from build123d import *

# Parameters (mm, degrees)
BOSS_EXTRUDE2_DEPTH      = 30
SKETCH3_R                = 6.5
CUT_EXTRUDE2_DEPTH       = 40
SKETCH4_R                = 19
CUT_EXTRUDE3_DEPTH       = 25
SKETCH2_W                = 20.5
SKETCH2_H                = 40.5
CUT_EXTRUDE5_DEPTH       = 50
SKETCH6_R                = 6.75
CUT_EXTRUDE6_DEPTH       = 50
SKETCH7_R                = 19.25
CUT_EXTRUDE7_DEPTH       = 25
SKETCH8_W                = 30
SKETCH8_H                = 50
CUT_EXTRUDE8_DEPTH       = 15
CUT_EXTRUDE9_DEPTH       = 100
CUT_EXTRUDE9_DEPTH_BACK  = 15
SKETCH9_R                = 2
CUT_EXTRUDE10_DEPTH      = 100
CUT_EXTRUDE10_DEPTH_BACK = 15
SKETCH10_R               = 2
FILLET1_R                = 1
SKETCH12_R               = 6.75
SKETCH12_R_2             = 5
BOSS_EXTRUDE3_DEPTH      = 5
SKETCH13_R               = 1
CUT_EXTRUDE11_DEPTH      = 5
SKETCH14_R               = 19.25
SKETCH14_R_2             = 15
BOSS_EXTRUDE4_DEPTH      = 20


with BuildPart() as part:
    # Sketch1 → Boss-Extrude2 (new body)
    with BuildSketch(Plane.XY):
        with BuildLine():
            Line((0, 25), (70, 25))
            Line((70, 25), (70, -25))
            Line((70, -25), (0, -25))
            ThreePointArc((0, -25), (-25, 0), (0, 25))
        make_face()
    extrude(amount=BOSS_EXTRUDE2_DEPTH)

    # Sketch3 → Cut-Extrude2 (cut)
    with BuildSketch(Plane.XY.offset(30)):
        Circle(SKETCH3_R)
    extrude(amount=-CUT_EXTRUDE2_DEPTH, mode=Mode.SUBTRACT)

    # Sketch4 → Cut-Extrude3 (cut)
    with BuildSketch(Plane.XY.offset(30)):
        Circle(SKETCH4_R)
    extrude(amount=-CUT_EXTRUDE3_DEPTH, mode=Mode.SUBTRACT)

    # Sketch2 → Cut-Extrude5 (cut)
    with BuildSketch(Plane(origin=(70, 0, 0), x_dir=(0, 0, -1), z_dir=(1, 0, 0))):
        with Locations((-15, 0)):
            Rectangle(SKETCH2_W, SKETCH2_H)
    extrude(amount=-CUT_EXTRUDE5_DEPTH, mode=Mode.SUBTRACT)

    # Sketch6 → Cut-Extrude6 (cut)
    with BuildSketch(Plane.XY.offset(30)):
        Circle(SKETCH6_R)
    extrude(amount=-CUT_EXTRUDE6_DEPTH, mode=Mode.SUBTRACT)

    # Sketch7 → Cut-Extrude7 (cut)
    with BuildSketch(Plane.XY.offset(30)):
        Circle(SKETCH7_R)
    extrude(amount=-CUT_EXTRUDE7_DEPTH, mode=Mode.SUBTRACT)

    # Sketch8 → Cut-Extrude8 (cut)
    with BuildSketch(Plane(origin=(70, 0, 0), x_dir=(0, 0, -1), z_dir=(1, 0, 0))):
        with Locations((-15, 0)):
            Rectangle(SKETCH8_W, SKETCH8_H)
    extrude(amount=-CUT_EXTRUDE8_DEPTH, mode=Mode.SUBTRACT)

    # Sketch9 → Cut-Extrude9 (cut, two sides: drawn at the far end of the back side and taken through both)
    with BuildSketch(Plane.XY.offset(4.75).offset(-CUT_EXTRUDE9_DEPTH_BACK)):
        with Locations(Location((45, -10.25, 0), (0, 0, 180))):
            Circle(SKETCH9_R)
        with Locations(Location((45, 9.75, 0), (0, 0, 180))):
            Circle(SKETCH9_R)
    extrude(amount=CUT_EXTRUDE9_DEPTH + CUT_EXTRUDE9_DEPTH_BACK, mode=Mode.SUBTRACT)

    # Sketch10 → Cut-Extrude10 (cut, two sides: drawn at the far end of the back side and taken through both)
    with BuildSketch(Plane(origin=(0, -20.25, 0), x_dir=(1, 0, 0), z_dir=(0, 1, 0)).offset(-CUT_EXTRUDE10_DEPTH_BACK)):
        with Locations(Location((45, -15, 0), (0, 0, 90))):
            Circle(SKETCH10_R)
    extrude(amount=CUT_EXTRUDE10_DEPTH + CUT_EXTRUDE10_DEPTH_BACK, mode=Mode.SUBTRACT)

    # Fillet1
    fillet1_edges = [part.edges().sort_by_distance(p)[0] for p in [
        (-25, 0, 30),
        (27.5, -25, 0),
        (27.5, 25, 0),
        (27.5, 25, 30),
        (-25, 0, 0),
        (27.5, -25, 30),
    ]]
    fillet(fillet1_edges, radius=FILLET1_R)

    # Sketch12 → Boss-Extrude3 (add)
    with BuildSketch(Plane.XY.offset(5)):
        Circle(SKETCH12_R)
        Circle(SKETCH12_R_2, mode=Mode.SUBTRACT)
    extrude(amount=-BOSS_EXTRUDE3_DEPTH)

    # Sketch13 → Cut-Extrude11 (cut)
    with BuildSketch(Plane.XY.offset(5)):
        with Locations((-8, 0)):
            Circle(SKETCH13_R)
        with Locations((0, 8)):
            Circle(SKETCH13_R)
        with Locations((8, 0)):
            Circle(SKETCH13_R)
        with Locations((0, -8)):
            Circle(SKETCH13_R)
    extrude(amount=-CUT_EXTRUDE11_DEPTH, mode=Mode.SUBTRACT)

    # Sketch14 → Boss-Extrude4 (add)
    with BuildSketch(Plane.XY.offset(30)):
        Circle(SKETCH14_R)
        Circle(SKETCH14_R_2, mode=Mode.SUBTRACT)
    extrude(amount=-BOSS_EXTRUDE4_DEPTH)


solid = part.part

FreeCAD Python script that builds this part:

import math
import FreeCAD as App
import Part
import Sketcher
from FreeCAD import Vector


def edges_at(feature, points):
    """Names of the edges that pass closest to the given points."""
    edges = feature.Shape.Edges
    near = lambda p: min(range(len(edges)), key=lambda i: edges[i].distToShape(Part.Vertex(*p))[0])
    return sorted({f"Edge{near(p) + 1}" for p in points})

doc = App.newDocument("Part")
body = doc.addObject("PartDesign::Body", "Body")

sketch1 = doc.addObject("Sketcher::SketchObject", "Sketch")
body.addObject(sketch1)
sketch1.AttachmentSupport = (doc.XY_Plane, [""])
sketch1.MapMode = "FlatFace"
sketch1.addGeometry(Part.LineSegment(Vector(70, 25, 0), Vector(0, 25, 0)), False)
sketch1.addGeometry(Part.ArcOfCircle(Part.Circle(Vector(0, 0, 0), Vector(0, 0, 1), 25), math.radians(90), math.radians(270)), False)
sketch1.addGeometry(Part.LineSegment(Vector(0, -25, 0), Vector(70, -25, 0)), False)
sketch1.addGeometry(Part.LineSegment(Vector(70, -25, 0), Vector(70, 25, 0)), False)
sketch1.addConstraint(Sketcher.Constraint("Tangent", 0, 2, 1, 1))
sketch1.addConstraint(Sketcher.Constraint("Tangent", 1, 2, 2, 1))
sketch1.addConstraint(Sketcher.Constraint("Coincident", 2, 2, 3, 1))
sketch1.addConstraint(Sketcher.Constraint("Coincident", 3, 2, 0, 1))
sketch1.addConstraint(Sketcher.Constraint("Horizontal", 0))
sketch1.addConstraint(Sketcher.Constraint("Horizontal", 2))
sketch1.addConstraint(Sketcher.Constraint("Vertical", 3))
sketch1.addConstraint(Sketcher.Constraint("Coincident", 1, 3, -1, 1))
sketch1.addConstraint(Sketcher.Constraint("Radius", 1, 25.0))
sketch1.addConstraint(Sketcher.Constraint("DistanceX", 0, 2, 0, 1, 70.0))
pad1 = doc.addObject("PartDesign::Pad", "Pad")
body.addObject(pad1)
pad1.Profile = sketch1
pad1.Length = 30

sketch2 = doc.addObject("Sketcher::SketchObject", "Sketch001")
body.addObject(sketch2)
sketch2.AttachmentSupport = (doc.XY_Plane, [""])
sketch2.MapMode = "FlatFace"
sketch2.AttachmentOffset = App.Placement(Vector(0, 0, 30), App.Rotation())
sketch2.addGeometry(Part.Circle(Vector(0, 0, 0), Vector(0, 0, 1), 6), False)
sketch2.addConstraint(Sketcher.Constraint("Coincident", 0, 3, -1, 1))
sketch2.addConstraint(Sketcher.Constraint("Diameter", 0, 13.0))
pocket1 = doc.addObject("PartDesign::Pocket", "Pocket")
body.addObject(pocket1)
pocket1.Profile = sketch2
pocket1.Length = 40

sketch3 = doc.addObject("Sketcher::SketchObject", "Sketch002")
body.addObject(sketch3)
sketch3.AttachmentSupport = (doc.XY_Plane, [""])
sketch3.MapMode = "FlatFace"
sketch3.AttachmentOffset = App.Placement(Vector(0, 0, 30), App.Rotation())
sketch3.addGeometry(Part.Circle(Vector(0, 0, 0), Vector(0, 0, 1), 19), False)
sketch3.addConstraint(Sketcher.Constraint("Coincident", 0, 3, -1, 1))
sketch3.addConstraint(Sketcher.Constraint("Diameter", 0, 38.0))
pocket2 = doc.addObject("PartDesign::Pocket", "Pocket001")
body.addObject(pocket2)
pocket2.Profile = sketch3
pocket2.Length = 25

sketch4 = doc.addObject("Sketcher::SketchObject", "Sketch003")
body.addObject(sketch4)
sketch4.AttachmentSupport = (doc.YZ_Plane, [""])
sketch4.MapMode = "FlatFace"
sketch4.AttachmentOffset = App.Placement(Vector(0, 0, 70), App.Rotation())
sketch4.addGeometry(Part.LineSegment(Vector(20, 25, 0), Vector(-20, 25, 0)), False)
sketch4.addGeometry(Part.LineSegment(Vector(-20, 25, 0), Vector(-20, 5, 0)), False)
sketch4.addGeometry(Part.LineSegment(Vector(-20, 5, 0), Vector(20, 5, 0)), False)
sketch4.addGeometry(Part.LineSegment(Vector(20, 5, 0), Vector(20, 25, 0)), False)
sketch4.addConstraint(Sketcher.Constraint("Coincident", 0, 2, 1, 1))
sketch4.addConstraint(Sketcher.Constraint("Coincident", 1, 2, 2, 1))
sketch4.addConstraint(Sketcher.Constraint("Coincident", 2, 2, 3, 1))
sketch4.addConstraint(Sketcher.Constraint("Coincident", 3, 2, 0, 1))
sketch4.addConstraint(Sketcher.Constraint("Horizontal", 0))
sketch4.addConstraint(Sketcher.Constraint("Vertical", 1))
sketch4.addConstraint(Sketcher.Constraint("Horizontal", 2))
sketch4.addConstraint(Sketcher.Constraint("Vertical", 3))
sketch4.addConstraint(Sketcher.Constraint("DistanceX", 0, 2, 0, 1, 40.5))
sketch4.addConstraint(Sketcher.Constraint("DistanceY", 1, 2, 1, 1, 20.5))
sketch4.addConstraint(Sketcher.Constraint("DistanceX", 0, 2, -1, 1, 20.25))
sketch4.addConstraint(Sketcher.Constraint("DistanceY", -1, 1, 0, 2, 25.25))
pocket3 = doc.addObject("PartDesign::Pocket", "Pocket002")
body.addObject(pocket3)
pocket3.Profile = sketch4
pocket3.Length = 50

sketch5 = doc.addObject("Sketcher::SketchObject", "Sketch004")
body.addObject(sketch5)
sketch5.AttachmentSupport = (doc.XY_Plane, [""])
sketch5.MapMode = "FlatFace"
sketch5.AttachmentOffset = App.Placement(Vector(0, 0, 30), App.Rotation())
sketch5.addGeometry(Part.Circle(Vector(0, 0, 0), Vector(0, 0, 1), 7), False)
sketch5.addConstraint(Sketcher.Constraint("Coincident", 0, 3, -1, 1))
sketch5.addConstraint(Sketcher.Constraint("Diameter", 0, 13.5))
pocket4 = doc.addObject("PartDesign::Pocket", "Pocket003")
body.addObject(pocket4)
pocket4.Profile = sketch5
pocket4.Length = 50

sketch6 = doc.addObject("Sketcher::SketchObject", "Sketch005")
body.addObject(sketch6)
sketch6.AttachmentSupport = (doc.XY_Plane, [""])
sketch6.MapMode = "FlatFace"
sketch6.AttachmentOffset = App.Placement(Vector(0, 0, 30), App.Rotation())
sketch6.addGeometry(Part.Circle(Vector(0, 0, 0), Vector(0, 0, 1), 19), False)
sketch6.addConstraint(Sketcher.Constraint("Coincident", 0, 3, -1, 1))
sketch6.addConstraint(Sketcher.Constraint("Diameter", 0, 38.5))
pocket5 = doc.addObject("PartDesign::Pocket", "Pocket004")
body.addObject(pocket5)
pocket5.Profile = sketch6
pocket5.Length = 25

sketch7 = doc.addObject("Sketcher::SketchObject", "Sketch006")
body.addObject(sketch7)
sketch7.AttachmentSupport = (doc.YZ_Plane, [""])
sketch7.MapMode = "FlatFace"
sketch7.AttachmentOffset = App.Placement(Vector(0, 0, 70), App.Rotation())
sketch7.addGeometry(Part.LineSegment(Vector(25, 30, 0), Vector(-25, 30, 0)), False)
sketch7.addGeometry(Part.LineSegment(Vector(-25, 30, 0), Vector(-25, 0, 0)), False)
sketch7.addGeometry(Part.LineSegment(Vector(-25, 0, 0), Vector(25, 0, 0)), False)
sketch7.addGeometry(Part.LineSegment(Vector(25, 0, 0), Vector(25, 30, 0)), False)
sketch7.addConstraint(Sketcher.Constraint("Coincident", 0, 2, 1, 1))
sketch7.addConstraint(Sketcher.Constraint("Coincident", 1, 2, 2, 1))
sketch7.addConstraint(Sketcher.Constraint("Coincident", 2, 2, 3, 1))
sketch7.addConstraint(Sketcher.Constraint("Coincident", 3, 2, 0, 1))
sketch7.addConstraint(Sketcher.Constraint("Horizontal", 0))
sketch7.addConstraint(Sketcher.Constraint("Vertical", 1))
sketch7.addConstraint(Sketcher.Constraint("Horizontal", 2))
sketch7.addConstraint(Sketcher.Constraint("Vertical", 3))
sketch7.addConstraint(Sketcher.Constraint("Symmetric", 1, 2, 2, 2, -1, 1))
sketch7.addConstraint(Sketcher.Constraint("DistanceX", 0, 2, 0, 1, 50.0))
sketch7.addConstraint(Sketcher.Constraint("DistanceY", 1, 2, 1, 1, 30.0))
pocket6 = doc.addObject("PartDesign::Pocket", "Pocket005")
body.addObject(pocket6)
pocket6.Profile = sketch7
pocket6.Length = 15

sketch8 = doc.addObject("Sketcher::SketchObject", "Sketch007")
body.addObject(sketch8)
sketch8.AttachmentSupport = (doc.XY_Plane, [""])
sketch8.MapMode = "FlatFace"
sketch8.AttachmentOffset = App.Placement(Vector(0, 0, 4.75), App.Rotation())
sketch8.addGeometry(Part.Circle(Vector(45, -10.2, 0), Vector(0, 0, 1), 2), False)
sketch8.addGeometry(Part.Circle(Vector(45, 9.8, 0), Vector(0, 0, 1), 2), False)
sketch8.addConstraint(Sketcher.Constraint("Equal", 0, 1))
sketch8.addConstraint(Sketcher.Constraint("Vertical", 0, 3, 1, 3))
sketch8.addConstraint(Sketcher.Constraint("Diameter", 0, 4.0))
sketch8.addConstraint(Sketcher.Constraint("DistanceX", -1, 1, 0, 3, 45.0))
sketch8.addConstraint(Sketcher.Constraint("DistanceY", 0, 3, 1, 3, 20.0))
sketch8.addConstraint(Sketcher.Constraint("DistanceY", 0, 3, -1, 1, 10.25))
pocket7 = doc.addObject("PartDesign::Pocket", "Pocket006")
body.addObject(pocket7)
pocket7.Profile = sketch8
pocket7.Type = "ThroughAll"
pocket7.Midplane = True

sketch9 = doc.addObject("Sketcher::SketchObject", "Sketch008")
body.addObject(sketch9)
sketch9.AttachmentSupport = (doc.XZ_Plane, [""])
sketch9.MapMode = "FlatFace"
sketch9.AttachmentOffset = App.Placement(Vector(0, 0, 20.25), App.Rotation())
sketch9.addGeometry(Part.Circle(Vector(45, 15, 0), Vector(0, 0, 1), 2), False)
sketch9.addConstraint(Sketcher.Constraint("Diameter", 0, 4.0))
sketch9.addConstraint(Sketcher.Constraint("DistanceX", -1, 1, 0, 3, 45.0))
sketch9.addConstraint(Sketcher.Constraint("DistanceY", -1, 1, 0, 3, 15.0))
pocket8 = doc.addObject("PartDesign::Pocket", "Pocket007")
body.addObject(pocket8)
pocket8.Profile = sketch9
pocket8.Type = "ThroughAll"
pocket8.Midplane = True
doc.recompute()

fillet = doc.addObject("PartDesign::Fillet", "Fillet")
body.addObject(fillet)
fillet.Base = (pocket8, edges_at(pocket8, [
    (-25, 0, 30),
    (27.5, -25, 0),
    (27.5, 25, 0),
    (27.5, 25, 30),
    (-25, 0, 0),
    (27.5, -25, 30),
]))
fillet.Radius = 1

sketch10 = doc.addObject("Sketcher::SketchObject", "Sketch009")
body.addObject(sketch10)
sketch10.AttachmentSupport = (doc.XY_Plane, [""])
sketch10.MapMode = "FlatFace"
sketch10.AttachmentOffset = App.Placement(Vector(0, 0, 5), App.Rotation())
sketch10.addGeometry(Part.Circle(Vector(0, 0, 0), Vector(0, 0, 1), 7), False)
sketch10.addGeometry(Part.Circle(Vector(0, 0, 0), Vector(0, 0, 1), 5), False)
sketch10.addConstraint(Sketcher.Constraint("Coincident", 0, 3, -1, 1))
sketch10.addConstraint(Sketcher.Constraint("Coincident", 1, 3, -1, 1))
sketch10.addConstraint(Sketcher.Constraint("Diameter", 1, 10.0))
sketch10.addConstraint(Sketcher.Constraint("Diameter", 0, 13.5))
pad2 = doc.addObject("PartDesign::Pad", "Pad001")
body.addObject(pad2)
pad2.Profile = sketch10
pad2.Length = 5
pad2.Reversed = True

sketch11 = doc.addObject("Sketcher::SketchObject", "Sketch010")
body.addObject(sketch11)
sketch11.AttachmentSupport = (doc.XY_Plane, [""])
sketch11.MapMode = "FlatFace"
sketch11.AttachmentOffset = App.Placement(Vector(0, 0, 5), App.Rotation())
sketch11.addGeometry(Part.Circle(Vector(-8, 0, 0), Vector(0, 0, 1), 1), False)
sketch11.addGeometry(Part.Circle(Vector(0, 8, 0), Vector(0, 0, 1), 1), False)
sketch11.addGeometry(Part.Circle(Vector(8, 0, 0), Vector(0, 0, 1), 1), False)
sketch11.addGeometry(Part.Circle(Vector(0, -8, 0), Vector(0, 0, 1), 1), False)
sketch11.addConstraint(Sketcher.Constraint("Equal", 0, 1))
sketch11.addConstraint(Sketcher.Constraint("Equal", 1, 2))
sketch11.addConstraint(Sketcher.Constraint("Equal", 2, 3))
sketch11.addConstraint(Sketcher.Constraint("Symmetric", 0, 3, 2, 3, -1, 1))
sketch11.addConstraint(Sketcher.Constraint("Symmetric", 1, 3, 3, 3, -1, 1))
sketch11.addConstraint(Sketcher.Constraint("PointOnObject", 0, 3, -1))
sketch11.addConstraint(Sketcher.Constraint("PointOnObject", 1, 3, -2))
sketch11.addConstraint(Sketcher.Constraint("Diameter", 0, 2.0))
sketch11.addConstraint(Sketcher.Constraint("DistanceX", 0, 3, -1, 1, 8.0))
sketch11.addConstraint(Sketcher.Constraint("DistanceY", -1, 1, 1, 3, 8.0))
pocket9 = doc.addObject("PartDesign::Pocket", "Pocket008")
body.addObject(pocket9)
pocket9.Profile = sketch11
pocket9.Length = 5

sketch12 = doc.addObject("Sketcher::SketchObject", "Sketch011")
body.addObject(sketch12)
sketch12.AttachmentSupport = (doc.XY_Plane, [""])
sketch12.MapMode = "FlatFace"
sketch12.AttachmentOffset = App.Placement(Vector(0, 0, 30), App.Rotation())
sketch12.addGeometry(Part.Circle(Vector(0, 0, 0), Vector(0, 0, 1), 19), False)
sketch12.addGeometry(Part.Circle(Vector(0, 0, 0), Vector(0, 0, 1), 15), False)
sketch12.addConstraint(Sketcher.Constraint("Coincident", 0, 3, -1, 1))
sketch12.addConstraint(Sketcher.Constraint("Coincident", 1, 3, -1, 1))
sketch12.addConstraint(Sketcher.Constraint("Diameter", 1, 30.0))
sketch12.addConstraint(Sketcher.Constraint("Diameter", 0, 38.5))
pad3 = doc.addObject("PartDesign::Pad", "Pad002")
body.addObject(pad3)
pad3.Profile = sketch12
pad3.Length = 20
pad3.Reversed = True

doc.recompute()
